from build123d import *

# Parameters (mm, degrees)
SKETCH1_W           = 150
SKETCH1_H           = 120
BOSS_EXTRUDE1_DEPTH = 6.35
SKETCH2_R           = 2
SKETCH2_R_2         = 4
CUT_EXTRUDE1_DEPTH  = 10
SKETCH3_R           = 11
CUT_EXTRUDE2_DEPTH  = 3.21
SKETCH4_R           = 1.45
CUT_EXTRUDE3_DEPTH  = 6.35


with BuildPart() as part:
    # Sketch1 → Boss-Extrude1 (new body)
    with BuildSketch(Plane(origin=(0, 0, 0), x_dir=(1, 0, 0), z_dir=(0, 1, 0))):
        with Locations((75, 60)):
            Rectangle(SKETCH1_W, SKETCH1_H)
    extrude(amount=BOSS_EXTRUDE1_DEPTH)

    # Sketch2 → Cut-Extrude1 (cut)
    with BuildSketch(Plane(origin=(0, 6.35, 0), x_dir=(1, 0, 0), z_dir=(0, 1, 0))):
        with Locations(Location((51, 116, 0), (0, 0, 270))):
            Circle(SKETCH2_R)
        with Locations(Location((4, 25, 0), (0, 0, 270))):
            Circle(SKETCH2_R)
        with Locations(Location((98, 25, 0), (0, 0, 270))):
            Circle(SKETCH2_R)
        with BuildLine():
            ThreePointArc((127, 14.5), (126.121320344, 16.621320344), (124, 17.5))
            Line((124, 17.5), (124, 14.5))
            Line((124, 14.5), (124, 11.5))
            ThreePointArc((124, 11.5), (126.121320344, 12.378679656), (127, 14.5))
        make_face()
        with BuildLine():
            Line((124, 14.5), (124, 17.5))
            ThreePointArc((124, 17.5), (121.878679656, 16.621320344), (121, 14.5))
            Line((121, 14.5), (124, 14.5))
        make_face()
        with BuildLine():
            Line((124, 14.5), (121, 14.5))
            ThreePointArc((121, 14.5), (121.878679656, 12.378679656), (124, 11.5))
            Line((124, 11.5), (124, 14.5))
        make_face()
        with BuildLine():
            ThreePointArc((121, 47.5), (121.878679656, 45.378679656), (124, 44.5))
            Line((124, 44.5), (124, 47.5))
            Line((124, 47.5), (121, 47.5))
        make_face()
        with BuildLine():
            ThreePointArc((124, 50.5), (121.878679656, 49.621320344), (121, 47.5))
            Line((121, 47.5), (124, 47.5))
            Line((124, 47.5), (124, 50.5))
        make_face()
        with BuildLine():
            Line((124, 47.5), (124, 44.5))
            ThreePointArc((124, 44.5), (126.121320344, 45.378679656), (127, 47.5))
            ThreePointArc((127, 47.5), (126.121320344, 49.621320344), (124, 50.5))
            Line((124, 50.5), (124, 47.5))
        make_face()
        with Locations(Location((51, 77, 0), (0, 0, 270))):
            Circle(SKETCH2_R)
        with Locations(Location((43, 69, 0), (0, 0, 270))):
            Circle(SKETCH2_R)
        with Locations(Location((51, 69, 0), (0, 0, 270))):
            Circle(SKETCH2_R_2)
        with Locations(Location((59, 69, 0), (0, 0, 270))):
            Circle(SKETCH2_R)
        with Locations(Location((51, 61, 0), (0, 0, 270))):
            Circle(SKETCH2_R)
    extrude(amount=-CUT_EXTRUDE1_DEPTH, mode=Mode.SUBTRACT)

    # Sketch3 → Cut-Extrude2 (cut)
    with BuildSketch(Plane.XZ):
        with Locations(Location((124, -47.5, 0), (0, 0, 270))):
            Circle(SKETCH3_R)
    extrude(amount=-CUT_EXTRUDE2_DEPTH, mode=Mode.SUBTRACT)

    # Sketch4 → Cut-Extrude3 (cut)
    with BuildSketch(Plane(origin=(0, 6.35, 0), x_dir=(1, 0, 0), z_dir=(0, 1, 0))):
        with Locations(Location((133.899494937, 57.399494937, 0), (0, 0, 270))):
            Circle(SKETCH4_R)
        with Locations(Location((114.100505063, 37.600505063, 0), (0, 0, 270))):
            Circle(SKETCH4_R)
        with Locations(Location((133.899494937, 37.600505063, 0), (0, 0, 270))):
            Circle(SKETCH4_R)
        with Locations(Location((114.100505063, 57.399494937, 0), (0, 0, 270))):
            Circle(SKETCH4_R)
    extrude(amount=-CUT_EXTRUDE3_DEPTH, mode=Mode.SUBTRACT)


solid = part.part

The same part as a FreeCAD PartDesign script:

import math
import FreeCAD as App
import Part
import Sketcher

V = App.Vector


def add_polygon(sketch, points):
    """Adds a closed chain of lines whose ends are joined by coincident constraints."""
    first, n = sketch.GeometryCount, len(points)
    for a, b in zip(points, points[1:] + points[:1]):
        sketch.addGeometry(Part.LineSegment(App.Vector(*a, 0), App.Vector(*b, 0)), False)
    for i in range(n):
        sketch.addConstraint(Sketcher.Constraint("Coincident", first + i, 2, first + (i + 1) % n, 1))

doc = App.newDocument("Part")
body = doc.addObject("PartDesign::Body", "Body")

# Sketch on XZ plane
sketch1 = body.newObject("Sketcher::SketchObject", "Sketch")
sketch1.AttachmentSupport = (doc.getObject("XZ_Plane"), [""])
sketch1.MapMode = "FlatFace"
add_polygon(sketch1, [(0, -120), (0, 0), (150, 0), (150, -120)])  # lines 0-3
sketch1.addConstraint([
    Sketcher.Constraint("Vertical", 0),
    Sketcher.Constraint("Horizontal", 1),
    Sketcher.Constraint("Vertical", 2),
    Sketcher.Constraint("Horizontal", 3),
    Sketcher.Constraint("Coincident", 0, 2, -1, 1),
    Sketcher.Constraint("DistanceX", 1, 1, 1, 2, 150.0),
    Sketcher.Constraint("DistanceY", 0, 1, 0, 2, 120.0),
])
pad1 = body.newObject("PartDesign::Pad", "Pad")
pad1.Profile = sketch1
pad1.Length = 6.35
pad1.Reversed = True

# Sketch on XZ plane
sketch2 = body.newObject("Sketcher::SketchObject", "Sketch001")
sketch2.AttachmentSupport = (doc.getObject("XZ_Plane"), [""])
sketch2.MapMode = "FlatFace"
sketch2.AttachmentOffset = App.Placement(V(0, 0, -6.35), App.Rotation())
sketch2.addGeometry([
    Part.Circle(V(51, -116, 0), V(0, 0, 1), 2),  # 0
    Part.Circle(V(4, -25, 0), V(0, 0, 1), 2),  # 1
    Part.Circle(V(98, -25, 0), V(0, 0, 1), 2),  # 2
    Part.ArcOfCircle(Part.Circle(V(124, -14.5, 0), V(0, 0, 1), 3), math.radians(180), math.radians(270)),  # 3
    Part.ArcOfCircle(Part.Circle(V(124, -14.5, 0), V(0, 0, 1), 3), math.radians(90), math.radians(180)),  # 4
    Part.ArcOfCircle(Part.Circle(V(124, -14.5, 0), V(0, 0, 1), 3), math.radians(0), math.radians(90)),  # 5
    Part.ArcOfCircle(Part.Circle(V(124, -14.5, 0), V(0, 0, 1), 3), math.radians(-90), math.radians(0)),  # 6
    Part.ArcOfCircle(Part.Circle(V(124, -47.5, 0), V(0, 0, 1), 3), math.radians(90), math.radians(180)),  # 7
    Part.ArcOfCircle(Part.Circle(V(124, -47.5, 0), V(0, 0, 1), 3), math.radians(0), math.radians(90)),  # 8
    Part.ArcOfCircle(Part.Circle(V(124, -47.5, 0), V(0, 0, 1), 3), math.radians(-90), math.radians(0)),  # 9
    Part.ArcOfCircle(Part.Circle(V(124, -47.5, 0), V(0, 0, 1), 3), math.radians(180), math.radians(270)),  # 10
    Part.Circle(V(51, -77, 0), V(0, 0, 1), 2),  # 11
    Part.Circle(V(43, -69, 0), V(0, 0, 1), 2),  # 12
    Part.Circle(V(51, -69, 0), V(0, 0, 1), 4),  # 13
    Part.Circle(V(59, -69, 0), V(0, 0, 1), 2),  # 14
    Part.Circle(V(51, -61, 0), V(0, 0, 1), 2),  # 15
], False)
sketch2.addConstraint([
    Sketcher.Constraint("Tangent", 3, 1, 4, 2),
    Sketcher.Constraint("Tangent", 4, 1, 5, 2),
    Sketcher.Constraint("Tangent", 5, 1, 6, 2),
    Sketcher.Constraint("Tangent", 6, 1, 3, 2),
    Sketcher.Constraint("Tangent", 7, 1, 8, 2),
    Sketcher.Constraint("Tangent", 8, 1, 9, 2),
    Sketcher.Constraint("Tangent", 9, 1, 10, 2),
    Sketcher.Constraint("Tangent", 10, 1, 7, 2),
    Sketcher.Constraint("Equal", 0, 1),
    Sketcher.Constraint("Equal", 1, 2),
    Sketcher.Constraint("Equal", 3, 4),
    Sketcher.Constraint("Equal", 6, 7),
    Sketcher.Constraint("Equal", 7, 8),
    Sketcher.Constraint("Equal", 2, 11),
    Sketcher.Constraint("Equal", 11, 12),
    Sketcher.Constraint("Equal", 12, 14),
    Sketcher.Constraint("Equal", 14, 15),
    Sketcher.Constraint("Horizontal", 1, 3, 2, 3),
    Sketcher.Constraint("Horizontal", 12, 3, 13, 3),
    Sketcher.Constraint("Horizontal", 13, 3, 14, 3),
    Sketcher.Constraint("Horizontal", 6, 3, 3, 1),
    Sketcher.Constraint("Horizontal", 3, 1, 5, 1),
    Sketcher.Constraint("Horizontal", 10, 3, 8, 1),
    Sketcher.Constraint("Horizontal", 8, 1, 10, 1),
    Sketcher.Constraint("Vertical", 6, 3, 7, 3),
    Sketcher.Constraint("Vertical", 0, 3, 11, 3),
    Sketcher.Constraint("Vertical", 11, 3, 13, 3),
    Sketcher.Constraint("Vertical", 13, 3, 15, 3),
    Sketcher.Constraint("Vertical", 10, 3, 4, 1),
    Sketcher.Constraint("Vertical", 4, 1, 6, 1),
    Sketcher.Constraint("Vertical", 6, 1, 7, 1),
    Sketcher.Constraint("Vertical", 7, 1, 9, 1),
    Sketcher.Constraint("Diameter", 0, 4.0),
    Sketcher.Constraint("Diameter", 13, 8.0),
    Sketcher.Constraint("Radius", 3, 3.0),
    Sketcher.Constraint("DistanceX", -1, 1, 0, 3, 51.0),
    Sketcher.Constraint("DistanceY", 0, 3, -1, 1, 116.0),
    Sketcher.Constraint("DistanceX", -1, 1, 1, 3, 4.0),
    Sketcher.Constraint("DistanceY", 1, 3, -1, 1, 25.0),
    Sketcher.Constraint("DistanceX", -1, 1, 2, 3, 98.0),
    Sketcher.Constraint("DistanceX", -1, 1, 3, 3, 124.0),
    Sketcher.Constraint("DistanceY", 11, 3, -1, 1, 77.0),
    Sketcher.Constraint("DistanceX", -1, 1, 12, 3, 43.0),
    Sketcher.Constraint("DistanceY", 12, 3, -1, 1, 69.0),
    Sketcher.Constraint("DistanceX", -1, 1, 14, 3, 59.0),
    Sketcher.Constraint("DistanceY", 15, 3, -1, 1, 61.0),
    Sketcher.Constraint("DistanceY", 7, 3, 3, 3, 33.0),
    Sketcher.Constraint("DistanceY", 3, 3, -1, 1, 14.5),
])
pocket1 = body.newObject("PartDesign::Pocket", "Pocket")
pocket1.Profile = sketch2
pocket1.Length = 10
pocket1.Reversed = True

# Sketch on XZ plane
sketch3 = body.newObject("Sketcher::SketchObject", "Sketch002")
sketch3.AttachmentSupport = (doc.getObject("XZ_Plane"), [""])
sketch3.MapMode = "FlatFace"
sketch3.addGeometry(Part.Circle(V(124, -48, 0), V(0, 0, 1), 11), False)
sketch3.addConstraint([
    Sketcher.Constraint("Diameter", 0, 22.0),
    Sketcher.Constraint("DistanceX", -1, 1, 0, 3, 124.0),
    Sketcher.Constraint("DistanceY", 0, 3, -1, 1, 47.5),
])
pocket2 = body.newObject("PartDesign::Pocket", "Pocket001")
pocket2.Profile = sketch3
pocket2.Length = 3.21

# Sketch on XZ plane
sketch4 = body.newObject("Sketcher::SketchObject", "Sketch003")
sketch4.AttachmentSupport = (doc.getObject("XZ_Plane"), [""])
sketch4.MapMode = "FlatFace"
sketch4.AttachmentOffset = App.Placement(V(0, 0, -6.35), App.Rotation())
sketch4.addGeometry([
    Part.Circle(V(133.9, -57.4, 0), V(0, 0, 1), 1.4),
    Part.Circle(V(114.1, -37.6, 0), V(0, 0, 1), 1.4),
    Part.Circle(V(133.9, -37.6, 0), V(0, 0, 1), 1.4),
    Part.Circle(V(114.1, -57.4, 0), V(0, 0, 1), 1.4),
], False)
sketch4.addConstraint([
    Sketcher.Constraint("Equal", 0, 1),
    Sketcher.Constraint("Equal", 1, 2),
    Sketcher.Constraint("Equal", 2, 3),
    Sketcher.Constraint("Horizontal", 1, 3, 2, 3),
    Sketcher.Constraint("Horizontal", 0, 3, 3, 3),
    Sketcher.Constraint("Vertical", 0, 3, 2, 3),
    Sketcher.Constraint("Vertical", 1, 3, 3, 3),
    Sketcher.Constraint("Diameter", 0, 2.9),
    Sketcher.Constraint("DistanceX", 1, 3, 0, 3, 19.79899),
    Sketcher.Constraint("DistanceY", 0, 3, 1, 3, 19.79899),
    Sketcher.Constraint("DistanceX", -1, 1, 0, 3, 133.899495),
    Sketcher.Constraint("DistanceY", 0, 3, -1, 1, 57.399495),
])
pocket3 = body.newObject("PartDesign::Pocket", "Pocket002")
pocket3.Profile = sketch4
pocket3.Length = 6.35
pocket3.Reversed = True

doc.recompute()
